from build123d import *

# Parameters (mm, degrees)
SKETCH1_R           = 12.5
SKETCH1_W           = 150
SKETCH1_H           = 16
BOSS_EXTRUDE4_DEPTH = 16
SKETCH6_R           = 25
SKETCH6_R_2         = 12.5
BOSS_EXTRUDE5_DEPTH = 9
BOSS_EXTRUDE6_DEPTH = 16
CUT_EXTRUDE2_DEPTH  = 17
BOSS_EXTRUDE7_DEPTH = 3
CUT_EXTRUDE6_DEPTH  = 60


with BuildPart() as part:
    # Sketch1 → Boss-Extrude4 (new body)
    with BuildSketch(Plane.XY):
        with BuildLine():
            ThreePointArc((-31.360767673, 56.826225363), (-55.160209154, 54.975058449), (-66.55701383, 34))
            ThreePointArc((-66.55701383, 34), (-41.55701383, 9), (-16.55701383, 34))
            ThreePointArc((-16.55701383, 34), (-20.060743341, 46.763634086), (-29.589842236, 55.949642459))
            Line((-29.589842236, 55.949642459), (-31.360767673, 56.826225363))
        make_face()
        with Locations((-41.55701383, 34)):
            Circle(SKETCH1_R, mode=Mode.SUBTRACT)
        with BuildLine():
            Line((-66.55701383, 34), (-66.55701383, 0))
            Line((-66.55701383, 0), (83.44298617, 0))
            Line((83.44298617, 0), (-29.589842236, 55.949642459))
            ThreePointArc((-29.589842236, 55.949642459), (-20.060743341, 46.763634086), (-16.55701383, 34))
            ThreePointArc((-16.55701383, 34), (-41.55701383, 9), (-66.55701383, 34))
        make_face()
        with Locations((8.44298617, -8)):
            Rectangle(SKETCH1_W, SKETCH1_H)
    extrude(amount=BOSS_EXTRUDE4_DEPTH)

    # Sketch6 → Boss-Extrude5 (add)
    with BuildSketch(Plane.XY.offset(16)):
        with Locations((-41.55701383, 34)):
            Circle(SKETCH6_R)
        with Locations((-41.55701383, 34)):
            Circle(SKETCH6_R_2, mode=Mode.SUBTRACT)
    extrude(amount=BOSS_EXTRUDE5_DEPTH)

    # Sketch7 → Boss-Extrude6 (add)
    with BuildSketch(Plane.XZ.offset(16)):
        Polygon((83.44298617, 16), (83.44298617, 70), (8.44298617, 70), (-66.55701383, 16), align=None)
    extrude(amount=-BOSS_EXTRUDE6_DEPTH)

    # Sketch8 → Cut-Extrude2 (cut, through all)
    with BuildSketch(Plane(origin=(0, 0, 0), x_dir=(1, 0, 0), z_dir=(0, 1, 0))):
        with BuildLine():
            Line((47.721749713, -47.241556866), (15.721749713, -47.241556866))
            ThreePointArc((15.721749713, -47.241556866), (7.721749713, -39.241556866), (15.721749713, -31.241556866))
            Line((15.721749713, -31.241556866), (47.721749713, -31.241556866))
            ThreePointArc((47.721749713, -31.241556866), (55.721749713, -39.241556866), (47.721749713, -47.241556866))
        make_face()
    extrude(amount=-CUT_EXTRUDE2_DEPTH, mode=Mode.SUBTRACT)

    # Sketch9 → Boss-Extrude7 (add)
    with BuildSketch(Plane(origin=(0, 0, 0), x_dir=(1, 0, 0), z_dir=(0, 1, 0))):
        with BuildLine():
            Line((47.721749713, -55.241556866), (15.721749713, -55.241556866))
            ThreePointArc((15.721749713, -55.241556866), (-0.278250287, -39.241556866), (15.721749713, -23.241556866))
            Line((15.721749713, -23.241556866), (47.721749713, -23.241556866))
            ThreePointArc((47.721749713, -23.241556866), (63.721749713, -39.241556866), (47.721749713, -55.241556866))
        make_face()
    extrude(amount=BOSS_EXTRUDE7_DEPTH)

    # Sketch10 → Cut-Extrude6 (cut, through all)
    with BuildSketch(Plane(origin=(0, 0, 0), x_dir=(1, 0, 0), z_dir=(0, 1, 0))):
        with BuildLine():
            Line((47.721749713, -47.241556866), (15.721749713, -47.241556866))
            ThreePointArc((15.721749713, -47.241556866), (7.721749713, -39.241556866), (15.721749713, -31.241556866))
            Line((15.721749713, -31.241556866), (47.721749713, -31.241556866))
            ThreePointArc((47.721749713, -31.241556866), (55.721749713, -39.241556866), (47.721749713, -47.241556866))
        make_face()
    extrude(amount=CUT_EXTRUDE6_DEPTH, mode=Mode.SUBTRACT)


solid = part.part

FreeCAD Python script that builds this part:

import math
import FreeCAD as App
import Part
import Sketcher

V = App.Vector
Q = App.Units.Quantity

doc = App.newDocument("Part")
body = doc.addObject("PartDesign::Body", "Body")

# Sketch on XY plane
sketch1 = body.newObject("Sketcher::SketchObject", "Sketch")
sketch1.AttachmentSupport = (doc.getObject("XY_Plane"), [""])
sketch1.MapMode = "FlatFace"
sketch1.addGeometry([
    Part.ArcOfCircle(Part.Circle(V(-41.557014, 34, 0), V(0, 0, 1), 25), math.radians(65.930163), math.radians(180)),  # 0
    Part.LineSegment(V(-66.557014, 34, 0), V(-66.557014, -16, 0)),  # 1
    Part.LineSegment(V(-66.557014, -16, 0), V(83.442986, -16, 0)),  # 2
    Part.LineSegment(V(83.442986, -16, 0), V(83.442986, 0, 0)),  # 3
    Part.LineSegment(V(83.442986, 0, 0), V(-29.589842, 55.949642, 0)),  # 4
    Part.LineSegment(V(-29.589842, 55.949642, 0), V(-31.360768, 56.826225, 0)),  # 5
    Part.Circle(V(-41.557014, 34, 0), V(0, 0, 1), 12.5),  # 6
], False)
sketch1.addConstraint([
    Sketcher.Constraint("Tangent", 0, 2, 1, 1),
    Sketcher.Constraint("Coincident", 1, 2, 2, 1),
    Sketcher.Constraint("Coincident", 2, 2, 3, 1),
    Sketcher.Constraint("Coincident", 3, 2, 4, 1),
    Sketcher.Constraint("Coincident", 4, 2, 5, 1),
    Sketcher.Constraint("Coincident", 5, 2, 0, 1),
    Sketcher.Constraint("Vertical", 1),
    Sketcher.Constraint("Horizontal", 2),
    Sketcher.Constraint("Vertical", 3),
    Sketcher.Constraint("Coincident", 6, 3, 0, 3),
    Sketcher.Constraint("PointOnObject", 3, 2, -1),
    Sketcher.Constraint("Parallel", 4, 5),
    Sketcher.Constraint("Diameter", 6, Q("25 mm")),
    Sketcher.Constraint("Radius", 0, Q("25 mm")),
    Sketcher.Constraint("DistanceX", 2, 1, 2, 2, Q("150 mm")),
    Sketcher.Constraint("DistanceY", 1, 2, 1, 1, Q("50 mm")),
    Sketcher.Constraint("DistanceY", 3, 1, 3, 2, Q("16 mm")),
    Sketcher.Constraint("Distance", 5, Q("1.976 mm")),
    Sketcher.Constraint("DistanceX", 6, 3, 4, 2, Q("11.967172 mm")),
    Sketcher.Constraint("DistanceX", 0, 3, -1, 1, Q("41.557014 mm")),
])
pad1 = body.newObject("PartDesign::Pad", "Pad")
pad1.Profile = sketch1
pad1.Length = 16

# Sketch on XY plane
sketch2 = body.newObject("Sketcher::SketchObject", "Sketch001")
sketch2.AttachmentSupport = (doc.getObject("XY_Plane"), [""])
sketch2.MapMode = "FlatFace"
sketch2.AttachmentOffset = App.Placement(V(0, 0, 16), App.Rotation())
sketch2.addGeometry([
    Part.Circle(V(-41.557014, 34, 0), V(0, 0, 1), 25),
    Part.Circle(V(-41.557014, 34, 0), V(0, 0, 1), 12.5),
], False)
sketch2.addConstraint([
    Sketcher.Constraint("Coincident", 1, 3, 0, 3),
    Sketcher.Constraint("Diameter", 0, Q("50 mm")),
    Sketcher.Constraint("Diameter", 1, Q("25 mm")),
    Sketcher.Constraint("DistanceY", -1, 1, 0, 3, Q("34 mm")),
    Sketcher.Constraint("DistanceX", 0, 3, -1, 1, Q("41.557014 mm")),
])
pad2 = body.newObject("PartDesign::Pad", "Pad001")
pad2.Profile = sketch2
pad2.Length = 9

# Sketch on XZ plane
sketch3 = body.newObject("Sketcher::SketchObject", "Sketch002")
sketch3.AttachmentSupport = (doc.getObject("XZ_Plane"), [""])
sketch3.MapMode = "FlatFace"
sketch3.AttachmentOffset = App.Placement(V(0, 0, 16), App.Rotation())
sketch3.addGeometry([
    Part.LineSegment(V(83.442986, 16, 0), V(83.442986, 70, 0)),
    Part.LineSegment(V(83.442986, 70, 0), V(8.442986, 70, 0)),
    Part.LineSegment(V(8.442986, 70, 0), V(-66.557014, 16, 0)),
    Part.LineSegment(V(-66.557014, 16, 0), V(83.442986, 16, 0)),
], False)
sketch3.addConstraint([
    Sketcher.Constraint("Coincident", 0, 2, 1, 1),
    Sketcher.Constraint("Coincident", 1, 2, 2, 1),
    Sketcher.Constraint("Coincident", 2, 2, 3, 1),
    Sketcher.Constraint("Coincident", 3, 2, 0, 1),
    Sketcher.Constraint("Vertical", 0),
    Sketcher.Constraint("Horizontal", 1),
    Sketcher.Constraint("Horizontal", 3),
    Sketcher.Constraint("DistanceX", 1, 2, 1, 1, Q("75 mm")),
    Sketcher.Constraint("DistanceX", 3, 1, 3, 2, Q("150 mm")),
    Sketcher.Constraint("DistanceY", 0, 1, 0, 2, Q("54 mm")),
    Sketcher.Constraint("DistanceY", -1, 1, 0, 2, Q("70 mm")),
    Sketcher.Constraint("DistanceX", -1, 1, 0, 2, Q("83.442986 mm")),
])
pad3 = body.newObject("PartDesign::Pad", "Pad002")
pad3.Profile = sketch3
pad3.Length = 16
pad3.Reversed = True

# Sketch on XZ plane
sketch4 = body.newObject("Sketcher::SketchObject", "Sketch003")
sketch4.AttachmentSupport = (doc.getObject("XZ_Plane"), [""])
sketch4.MapMode = "FlatFace"
sketch4.addGeometry([
    Part.LineSegment(V(15.72175, 47.241557, 0), V(47.72175, 47.241557, 0)),
    Part.ArcOfCircle(Part.Circle(V(47.72175, 39.241557, 0), V(0, 0, 1), 8), math.radians(-90), math.radians(90)),
    Part.LineSegment(V(47.72175, 31.241557, 0), V(15.72175, 31.241557, 0)),
    Part.ArcOfCircle(Part.Circle(V(15.72175, 39.241557, 0), V(0, 0, 1), 8), math.radians(90), math.radians(270)),
], False)
sketch4.addConstraint([
    Sketcher.Constraint("Tangent", 0, 2, 1, 2),
    Sketcher.Constraint("Tangent", 1, 1, 2, 1),
    Sketcher.Constraint("Tangent", 2, 2, 3, 2),
    Sketcher.Constraint("Tangent", 3, 1, 0, 1),
    Sketcher.Constraint("Horizontal", 0),
    Sketcher.Constraint("Horizontal", 2),
    Sketcher.Constraint("Radius", 1, Q("8 mm")),
    Sketcher.Constraint("DistanceX", 0, 1, 0, 2, Q("32 mm")),
    Sketcher.Constraint("DistanceX", -1, 1, 1, 3, Q("47.72175 mm")),
    Sketcher.Constraint("DistanceY", -1, 1, 1, 3, Q("39.241557 mm")),
])
pocket1 = body.newObject("PartDesign::Pocket", "Pocket")
pocket1.Profile = sketch4
pocket1.Type = "ThroughAll"
pocket1.Reversed = True

# Sketch on XZ plane
sketch5 = body.newObject("Sketcher::SketchObject", "Sketch004")
sketch5.AttachmentSupport = (doc.getObject("XZ_Plane"), [""])
sketch5.MapMode = "FlatFace"
sketch5.addGeometry([
    Part.LineSegment(V(15.72175, 55.241557, 0), V(47.72175, 55.241557, 0)),
    Part.ArcOfCircle(Part.Circle(V(47.72175, 39.241557, 0), V(0, 0, 1), 16), math.radians(-90), math.radians(90)),
    Part.LineSegment(V(47.72175, 23.241557, 0), V(15.72175, 23.241557, 0)),
    Part.ArcOfCircle(Part.Circle(V(15.72175, 39.241557, 0), V(0, 0, 1), 16), math.radians(90), math.radians(270)),
], False)
sketch5.addConstraint([
    Sketcher.Constraint("Tangent", 0, 2, 1, 2),
    Sketcher.Constraint("Tangent", 1, 1, 2, 1),
    Sketcher.Constraint("Tangent", 2, 2, 3, 2),
    Sketcher.Constraint("Tangent", 3, 1, 0, 1),
    Sketcher.Constraint("Horizontal", 0),
    Sketcher.Constraint("Horizontal", 2),
    Sketcher.Constraint("Radius", 1, Q("16 mm")),
    Sketcher.Constraint("DistanceX", 0, 1, 0, 2, Q("32 mm")),
    Sketcher.Constraint("DistanceX", -1, 1, 1, 3, Q("47.72175 mm")),
    Sketcher.Constraint("DistanceY", -1, 1, 1, 3, Q("39.241557 mm")),
])
pad4 = body.newObject("PartDesign::Pad", "Pad003")
pad4.Profile = sketch5
pad4.Length = 3
pad4.Reversed = True

# Sketch on XZ plane
sketch6 = body.newObject("Sketcher::SketchObject", "Sketch005")
sketch6.AttachmentSupport = (doc.getObject("XZ_Plane"), [""])
sketch6.MapMode = "FlatFace"
sketch6.addGeometry([
    Part.LineSegment(V(15.72175, 47.241557, 0), V(47.72175, 47.241557, 0)),
    Part.ArcOfCircle(Part.Circle(V(47.72175, 39.241557, 0), V(0, 0, 1), 8), math.radians(-90), math.radians(90)),
    Part.LineSegment(V(47.72175, 31.241557, 0), V(15.72175, 31.241557, 0)),
    Part.ArcOfCircle(Part.Circle(V(15.72175, 39.241557, 0), V(0, 0, 1), 8), math.radians(90), math.radians(270)),
], False)
sketch6.addConstraint([
    Sketcher.Constraint("Tangent", 0, 2, 1, 2),
    Sketcher.Constraint("Tangent", 1, 1, 2, 1),
    Sketcher.Constraint("Tangent", 2, 2, 3, 2),
    Sketcher.Constraint("Tangent", 3, 1, 0, 1),
    Sketcher.Constraint("Horizontal", 0),
    Sketcher.Constraint("Horizontal", 2),
    Sketcher.Constraint("Radius", 1, Q("8 mm")),
    Sketcher.Constraint("DistanceX", 0, 1, 0, 2, Q("32 mm")),
    Sketcher.Constraint("DistanceX", -1, 1, 1, 3, Q("47.72175 mm")),
    Sketcher.Constraint("DistanceY", -1, 1, 1, 3, Q("39.241557 mm")),
])
pocket2 = body.newObject("PartDesign::Pocket", "Pocket001")
pocket2.Profile = sketch6
pocket2.Type = "ThroughAll"

doc.recompute()
